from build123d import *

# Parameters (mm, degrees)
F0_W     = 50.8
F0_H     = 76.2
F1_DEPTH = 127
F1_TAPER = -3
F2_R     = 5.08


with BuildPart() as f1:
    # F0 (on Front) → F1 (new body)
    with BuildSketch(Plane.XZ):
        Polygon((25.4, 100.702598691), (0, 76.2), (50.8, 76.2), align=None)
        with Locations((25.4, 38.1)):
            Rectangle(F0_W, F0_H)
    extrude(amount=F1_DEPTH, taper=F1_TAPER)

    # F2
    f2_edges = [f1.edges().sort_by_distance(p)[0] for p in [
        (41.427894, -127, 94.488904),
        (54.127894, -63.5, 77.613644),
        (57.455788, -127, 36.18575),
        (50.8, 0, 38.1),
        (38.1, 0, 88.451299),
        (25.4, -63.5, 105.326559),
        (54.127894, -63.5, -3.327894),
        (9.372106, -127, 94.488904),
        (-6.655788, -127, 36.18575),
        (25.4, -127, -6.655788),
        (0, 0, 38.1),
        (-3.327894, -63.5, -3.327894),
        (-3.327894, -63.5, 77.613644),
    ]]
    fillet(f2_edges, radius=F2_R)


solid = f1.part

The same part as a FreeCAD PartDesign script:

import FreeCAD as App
import Part
import Sketcher
from FreeCAD import Vector
Q = App.Units.Quantity


def edges_at(feature, points):
    """Names of the edges that pass closest to the given points."""
    edges = feature.Shape.Edges
    near = lambda p: min(range(len(edges)), key=lambda i: edges[i].distToShape(Part.Vertex(*p))[0])
    return sorted({f"Edge{near(p) + 1}" for p in points})

doc = App.newDocument("Part")
params = doc.addObject("Spreadsheet::Sheet", "Params")
for row, (alias, value) in enumerate([
    ("sketch1_width", "2 in"),
    ("sketch1_height", "3 in"),
    ("pad1_length", "5 in"),
    ("pad1_taper", "3 deg"),
    ("fillet_radius", "0.2 in"),
], start=1):
    params.set(f"A{row}", alias)
    params.set(f"B{row}", "=" + value)
    params.setAlias(f"B{row}", alias)

body = doc.addObject("PartDesign::Body", "Body")

# Sketch on XZ plane
sketch1 = body.newObject("Sketcher::SketchObject", "Sketch")
sketch1.AttachmentSupport = (doc.getObject("XZ_Plane"), [""])
sketch1.MapMode = "FlatFace"
sketch1.addGeometry([
    Part.LineSegment(Vector(25.4, 100.702599, 0), Vector(0, 76.2, 0)),  # 0
    Part.LineSegment(Vector(0, 76.2, 0), Vector(0, 0, 0)),  # 1
    Part.LineSegment(Vector(0, 0, 0), Vector(50.8, 0, 0)),  # 2
    Part.LineSegment(Vector(50.8, 0, 0), Vector(50.8, 76.2, 0)),  # 3
    Part.LineSegment(Vector(50.8, 76.2, 0), Vector(25.4, 100.702599, 0)),  # 4
], False)
sketch1.addConstraint([
    Sketcher.Constraint("Coincident", 0, 2, 1, 1),
    Sketcher.Constraint("Coincident", 1, 2, 2, 1),
    Sketcher.Constraint("Coincident", 2, 2, 3, 1),
    Sketcher.Constraint("Coincident", 3, 2, 4, 1),
    Sketcher.Constraint("Coincident", 4, 2, 0, 1),
    Sketcher.Constraint("Vertical", 1),
    Sketcher.Constraint("Horizontal", 2),
    Sketcher.Constraint("Vertical", 3),
    Sketcher.Constraint("Coincident", 1, 2, -1, 1),
    Sketcher.Constraint("Horizontal", 0, 2, 3, 2),
    Sketcher.Constraint("Equal", 0, 4),
    Sketcher.Constraint("DistanceX", 2, 1, 2, 2, Q("2 in")),
    Sketcher.Constraint("DistanceY", 1, 2, 1, 1, Q("3 in")),
    Sketcher.Constraint("DistanceY", -1, 1, 4, 2, Q("100.702599 mm")),
])
sketch1.setExpression("Constraints[11]", "Params.sketch1_width")
sketch1.setExpression("Constraints[12]", "Params.sketch1_height")
pad1 = body.newObject("PartDesign::Pad", "Pad")
pad1.Profile = sketch1
pad1.setExpression("Length", "Params.pad1_length")
pad1.setExpression("TaperAngle", "Params.pad1_taper")
doc.recompute()

fillet = body.newObject("PartDesign::Fillet", "Fillet")
fillet.Base = (pad1, edges_at(pad1, [
    (41.428, -127, 94.489),
    (54.128, -63.5, 77.614),
    (57.456, -127, 36.186),
    (50.8, 0, 38.1),
    (38.1, 0, 88.451),
    (25.4, -63.5, 105.327),
    (54.128, -63.5, -3.328),
    (9.372, -127, 94.489),
    (-6.656, -127, 36.186),
    (25.4, -127, -6.656),
    (0, 0, 38.1),
    (-3.328, -63.5, -3.328),
    (-3.328, -63.5, 77.614),
]))
fillet.setExpression("Radius", "Params.fillet_radius")

doc.recompute()
